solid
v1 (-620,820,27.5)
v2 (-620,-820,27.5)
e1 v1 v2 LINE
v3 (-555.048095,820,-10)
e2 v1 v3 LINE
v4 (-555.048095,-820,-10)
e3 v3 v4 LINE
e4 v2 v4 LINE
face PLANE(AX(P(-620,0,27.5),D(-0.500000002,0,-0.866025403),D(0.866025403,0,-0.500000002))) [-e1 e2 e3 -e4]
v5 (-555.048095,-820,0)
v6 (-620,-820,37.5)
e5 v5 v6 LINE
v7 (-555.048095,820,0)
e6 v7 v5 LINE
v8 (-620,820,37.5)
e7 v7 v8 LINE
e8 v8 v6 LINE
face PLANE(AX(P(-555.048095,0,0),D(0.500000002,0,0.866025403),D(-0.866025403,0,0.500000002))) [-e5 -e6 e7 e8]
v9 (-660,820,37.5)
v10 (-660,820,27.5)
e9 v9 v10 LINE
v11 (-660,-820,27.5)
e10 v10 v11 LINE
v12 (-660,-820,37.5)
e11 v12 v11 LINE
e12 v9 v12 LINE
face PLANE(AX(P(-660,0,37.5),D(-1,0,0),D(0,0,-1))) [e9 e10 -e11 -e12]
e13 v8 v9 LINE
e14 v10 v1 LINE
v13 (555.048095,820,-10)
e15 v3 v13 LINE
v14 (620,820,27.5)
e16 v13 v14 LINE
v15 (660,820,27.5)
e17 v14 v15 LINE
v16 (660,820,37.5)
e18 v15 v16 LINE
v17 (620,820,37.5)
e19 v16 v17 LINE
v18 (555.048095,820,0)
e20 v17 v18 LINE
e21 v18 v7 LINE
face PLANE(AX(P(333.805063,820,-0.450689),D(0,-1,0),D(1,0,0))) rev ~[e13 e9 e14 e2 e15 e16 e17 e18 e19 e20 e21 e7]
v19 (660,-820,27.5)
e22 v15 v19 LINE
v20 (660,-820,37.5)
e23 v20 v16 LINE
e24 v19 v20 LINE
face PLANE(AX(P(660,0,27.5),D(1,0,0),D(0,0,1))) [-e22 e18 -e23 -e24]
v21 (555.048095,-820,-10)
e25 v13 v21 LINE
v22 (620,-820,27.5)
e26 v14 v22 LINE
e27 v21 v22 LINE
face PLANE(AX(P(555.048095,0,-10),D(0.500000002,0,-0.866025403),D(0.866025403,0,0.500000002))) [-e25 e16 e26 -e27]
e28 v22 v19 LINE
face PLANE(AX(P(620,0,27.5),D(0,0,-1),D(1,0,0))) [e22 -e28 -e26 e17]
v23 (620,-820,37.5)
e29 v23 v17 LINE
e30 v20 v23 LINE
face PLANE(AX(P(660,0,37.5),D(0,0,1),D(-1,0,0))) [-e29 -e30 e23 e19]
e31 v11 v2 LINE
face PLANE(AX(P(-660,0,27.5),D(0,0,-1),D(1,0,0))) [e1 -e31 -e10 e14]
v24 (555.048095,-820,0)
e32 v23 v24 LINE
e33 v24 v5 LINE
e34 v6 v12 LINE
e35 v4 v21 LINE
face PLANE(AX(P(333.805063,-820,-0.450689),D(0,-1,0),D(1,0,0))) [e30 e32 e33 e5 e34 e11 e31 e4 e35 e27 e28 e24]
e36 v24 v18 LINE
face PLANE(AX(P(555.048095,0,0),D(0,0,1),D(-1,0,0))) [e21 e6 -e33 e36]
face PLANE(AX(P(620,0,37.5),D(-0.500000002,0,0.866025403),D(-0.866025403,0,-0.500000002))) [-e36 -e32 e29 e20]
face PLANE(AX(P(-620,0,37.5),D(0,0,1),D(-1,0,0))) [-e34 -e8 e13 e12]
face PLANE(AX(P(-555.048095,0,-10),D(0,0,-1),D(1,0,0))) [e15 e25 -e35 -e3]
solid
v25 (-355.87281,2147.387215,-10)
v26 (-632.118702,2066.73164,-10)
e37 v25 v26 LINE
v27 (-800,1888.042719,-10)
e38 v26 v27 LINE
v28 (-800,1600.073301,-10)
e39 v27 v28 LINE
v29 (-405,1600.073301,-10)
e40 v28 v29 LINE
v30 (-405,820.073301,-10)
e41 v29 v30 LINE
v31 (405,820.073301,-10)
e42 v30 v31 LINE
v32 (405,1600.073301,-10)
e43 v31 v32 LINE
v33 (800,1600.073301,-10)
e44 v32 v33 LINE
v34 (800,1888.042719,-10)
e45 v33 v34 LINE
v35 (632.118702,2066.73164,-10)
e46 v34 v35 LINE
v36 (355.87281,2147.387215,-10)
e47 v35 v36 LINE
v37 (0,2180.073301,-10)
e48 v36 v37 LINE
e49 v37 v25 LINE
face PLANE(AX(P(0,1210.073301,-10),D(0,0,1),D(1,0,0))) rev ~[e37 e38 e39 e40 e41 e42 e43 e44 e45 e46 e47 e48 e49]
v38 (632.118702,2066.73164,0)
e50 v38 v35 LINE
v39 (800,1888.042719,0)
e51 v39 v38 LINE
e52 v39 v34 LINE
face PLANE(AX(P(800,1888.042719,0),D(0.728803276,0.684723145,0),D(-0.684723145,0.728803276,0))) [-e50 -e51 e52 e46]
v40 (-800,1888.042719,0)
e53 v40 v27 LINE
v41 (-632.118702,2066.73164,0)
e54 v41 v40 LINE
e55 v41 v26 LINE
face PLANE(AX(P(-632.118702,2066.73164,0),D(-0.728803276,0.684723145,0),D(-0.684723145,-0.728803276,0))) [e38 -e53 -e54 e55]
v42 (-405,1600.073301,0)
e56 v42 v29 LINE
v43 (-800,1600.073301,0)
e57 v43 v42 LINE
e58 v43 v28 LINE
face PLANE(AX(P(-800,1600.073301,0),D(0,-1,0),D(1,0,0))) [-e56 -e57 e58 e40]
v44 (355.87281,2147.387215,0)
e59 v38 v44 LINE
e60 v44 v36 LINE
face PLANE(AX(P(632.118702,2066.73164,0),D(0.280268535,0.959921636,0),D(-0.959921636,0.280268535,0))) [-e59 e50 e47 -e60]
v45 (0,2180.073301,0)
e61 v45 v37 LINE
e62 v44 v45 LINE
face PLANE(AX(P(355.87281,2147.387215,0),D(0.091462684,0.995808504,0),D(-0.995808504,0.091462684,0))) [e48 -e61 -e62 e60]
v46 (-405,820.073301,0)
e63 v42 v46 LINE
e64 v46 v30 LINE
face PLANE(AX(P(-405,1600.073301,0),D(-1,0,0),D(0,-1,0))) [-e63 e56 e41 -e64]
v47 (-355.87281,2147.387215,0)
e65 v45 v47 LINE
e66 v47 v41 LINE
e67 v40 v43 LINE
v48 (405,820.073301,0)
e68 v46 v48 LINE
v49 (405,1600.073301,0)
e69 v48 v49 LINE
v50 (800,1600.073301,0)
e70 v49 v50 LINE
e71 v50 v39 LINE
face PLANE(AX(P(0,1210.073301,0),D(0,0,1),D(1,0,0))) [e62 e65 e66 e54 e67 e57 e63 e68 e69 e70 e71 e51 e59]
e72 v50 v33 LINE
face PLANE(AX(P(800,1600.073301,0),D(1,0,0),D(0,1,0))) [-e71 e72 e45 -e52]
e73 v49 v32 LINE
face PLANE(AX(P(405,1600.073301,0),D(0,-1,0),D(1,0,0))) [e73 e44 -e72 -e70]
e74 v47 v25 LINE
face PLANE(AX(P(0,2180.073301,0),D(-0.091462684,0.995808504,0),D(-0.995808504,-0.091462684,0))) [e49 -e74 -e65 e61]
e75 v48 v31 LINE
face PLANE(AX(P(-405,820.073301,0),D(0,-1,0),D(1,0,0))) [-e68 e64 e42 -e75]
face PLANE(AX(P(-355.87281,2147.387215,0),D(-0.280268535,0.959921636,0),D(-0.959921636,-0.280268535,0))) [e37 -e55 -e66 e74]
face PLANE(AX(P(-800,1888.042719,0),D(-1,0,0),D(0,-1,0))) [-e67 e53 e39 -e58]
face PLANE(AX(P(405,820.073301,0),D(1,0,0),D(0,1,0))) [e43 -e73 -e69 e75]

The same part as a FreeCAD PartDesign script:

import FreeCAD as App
import Part
import Sketcher
Q = App.Units.Quantity

doc = App.newDocument("Part")
body = doc.addObject("PartDesign::Body", "Body")

# Sketch on XZ plane
sketch1 = body.newObject("Sketcher::SketchObject", "Sketch")
sketch1.AttachmentSupport = (doc.getObject("XZ_Plane"), [""])
sketch1.MapMode = "FlatFace"
sketch1.addGeometry([
    Part.LineSegment(App.Vector(555.048095, 0, 0), App.Vector(-555.048095, 0, 0)),  # 0
    Part.LineSegment(App.Vector(-555.048095, 0, 0), App.Vector(-620, 37.5, 0)),  # 1
    Part.LineSegment(App.Vector(-620, 37.5, 0), App.Vector(-660, 37.5, 0)),  # 2
    Part.LineSegment(App.Vector(-660, 37.5, 0), App.Vector(-660, 27.5, 0)),  # 3
    Part.LineSegment(App.Vector(-660, 27.5, 0), App.Vector(-620, 27.5, 0)),  # 4
    Part.LineSegment(App.Vector(-620, 27.5, 0), App.Vector(-555.048095, -10, 0)),  # 5
    Part.LineSegment(App.Vector(-555.048095, -10, 0), App.Vector(555.048095, -10, 0)),  # 6
    Part.LineSegment(App.Vector(555.048095, -10, 0), App.Vector(620, 27.5, 0)),  # 7
    Part.LineSegment(App.Vector(620, 27.5, 0), App.Vector(660, 27.5, 0)),  # 8
    Part.LineSegment(App.Vector(660, 27.5, 0), App.Vector(660, 37.5, 0)),  # 9
    Part.LineSegment(App.Vector(660, 37.5, 0), App.Vector(620, 37.5, 0)),  # 10
    Part.LineSegment(App.Vector(620, 37.5, 0), App.Vector(555.048095, 0, 0)),  # 11
], False)
sketch1.addConstraint([
    Sketcher.Constraint("Coincident", 0, 2, 1, 1),
    Sketcher.Constraint("Coincident", 1, 2, 2, 1),
    Sketcher.Constraint("Coincident", 2, 2, 3, 1),
    Sketcher.Constraint("Coincident", 3, 2, 4, 1),
    Sketcher.Constraint("Coincident", 4, 2, 5, 1),
    Sketcher.Constraint("Coincident", 5, 2, 6, 1),
    Sketcher.Constraint("Coincident", 6, 2, 7, 1),
    Sketcher.Constraint("Coincident", 7, 2, 8, 1),
    Sketcher.Constraint("Coincident", 8, 2, 9, 1),
    Sketcher.Constraint("Coincident", 9, 2, 10, 1),
    Sketcher.Constraint("Coincident", 10, 2, 11, 1),
    Sketcher.Constraint("Coincident", 11, 2, 0, 1),
    Sketcher.Constraint("Horizontal", 0),
    Sketcher.Constraint("Horizontal", 2),
    Sketcher.Constraint("Vertical", 3),
    Sketcher.Constraint("Horizontal", 4),
    Sketcher.Constraint("Horizontal", 6),
    Sketcher.Constraint("Horizontal", 8),
    Sketcher.Constraint("Vertical", 9),
    Sketcher.Constraint("Horizontal", 10),
    Sketcher.Constraint("Symmetric", 0, 2, 11, 2, -1, 1),
    Sketcher.Constraint("Symmetric", 4, 2, 7, 2, -2),
    Sketcher.Constraint("Symmetric", 2, 2, 9, 2, -2),
    Sketcher.Constraint("Parallel", 1, 5),
    Sketcher.Constraint("Parallel", 7, 11),
    Sketcher.Constraint("Vertical", 1, 2, 4, 2),
    Sketcher.Constraint("Vertical", 0, 2, 5, 2),
    Sketcher.Constraint("Vertical", 7, 2, 10, 2),
    Sketcher.Constraint("DistanceX", 2, 2, 2, 1, Q("40 mm")),
    Sketcher.Constraint("DistanceY", 3, 2, 3, 1, Q("10 mm")),
    Sketcher.Constraint("Angle", 1, Q("150 deg")),
    Sketcher.Constraint("Distance", 1, Q("75 mm")),
    Sketcher.Constraint("DistanceX", 1, 2, -1, 1, Q("620 mm")),
])
pad1 = body.newObject("PartDesign::Pad", "Pad")
pad1.Profile = sketch1
pad1.Length = 1640
pad1.Midplane = True
body2 = doc.addObject("PartDesign::Body", "Body001")

# Sketch on XY plane
sketch2 = body2.newObject("Sketcher::SketchObject", "Sketch001")
sketch2.AttachmentSupport = (doc.getObject("XY_Plane001"), [""])
sketch2.MapMode = "FlatFace"
sketch2.addGeometry([
    Part.LineSegment(App.Vector(-405, 820.073301, 0), App.Vector(405, 820.073301, 0)),  # 0
    Part.LineSegment(App.Vector(405, 820.073301, 0), App.Vector(405, 1600.073301, 0)),  # 1
    Part.LineSegment(App.Vector(405, 1600.073301, 0), App.Vector(800, 1600.073301, 0)),  # 2
    Part.LineSegment(App.Vector(800, 1600.073301, 0), App.Vector(800, 1888.042719, 0)),  # 3
    Part.LineSegment(App.Vector(800, 1888.042719, 0), App.Vector(632.118702, 2066.73164, 0)),  # 4
    Part.LineSegment(App.Vector(632.118702, 2066.73164, 0), App.Vector(355.87281, 2147.387215, 0)),  # 5
    Part.LineSegment(App.Vector(355.87281, 2147.387215, 0), App.Vector(0, 2180.073301, 0)),  # 6
    Part.LineSegment(App.Vector(0, 2180.073301, 0), App.Vector(-355.87281, 2147.387215, 0)),  # 7
    Part.LineSegment(App.Vector(-355.87281, 2147.387215, 0), App.Vector(-632.118702, 2066.73164, 0)),  # 8
    Part.LineSegment(App.Vector(-632.118702, 2066.73164, 0), App.Vector(-800, 1888.042719, 0)),  # 9
    Part.LineSegment(App.Vector(-800, 1888.042719, 0), App.Vector(-800, 1600.073301, 0)),  # 10
    Part.LineSegment(App.Vector(-800, 1600.073301, 0), App.Vector(-405, 1600.073301, 0)),  # 11
    Part.LineSegment(App.Vector(-405, 1600.073301, 0), App.Vector(-405, 820.073301, 0)),  # 12
], False)
sketch2.addConstraint([
    Sketcher.Constraint("Coincident", 0, 2, 1, 1),
    Sketcher.Constraint("Coincident", 1, 2, 2, 1),
    Sketcher.Constraint("Coincident", 2, 2, 3, 1),
    Sketcher.Constraint("Coincident", 3, 2, 4, 1),
    Sketcher.Constraint("Coincident", 4, 2, 5, 1),
    Sketcher.Constraint("Coincident", 5, 2, 6, 1),
    Sketcher.Constraint("Coincident", 6, 2, 7, 1),
    Sketcher.Constraint("Coincident", 7, 2, 8, 1),
    Sketcher.Constraint("Coincident", 8, 2, 9, 1),
    Sketcher.Constraint("Coincident", 9, 2, 10, 1),
    Sketcher.Constraint("Coincident", 10, 2, 11, 1),
    Sketcher.Constraint("Coincident", 11, 2, 12, 1),
    Sketcher.Constraint("Coincident", 12, 2, 0, 1),
    Sketcher.Constraint("Horizontal", 0),
    Sketcher.Constraint("Vertical", 1),
    Sketcher.Constraint("Horizontal", 2),
    Sketcher.Constraint("Vertical", 3),
    Sketcher.Constraint("Vertical", 10),
    Sketcher.Constraint("Horizontal", 11),
    Sketcher.Constraint("Vertical", 12),
    Sketcher.Constraint("Symmetric", 5, 2, 7, 2, -2),
    Sketcher.Constraint("Symmetric", 4, 2, 8, 2, -2),
    Sketcher.Constraint("Symmetric", 3, 2, 9, 2, -2),
    Sketcher.Constraint("Symmetric", 1, 2, 11, 2, -2),
    Sketcher.Constraint("PointOnObject", 6, 2, -2),
    Sketcher.Constraint("DistanceX", 0, 1, 0, 2, Q("810 mm")),
    Sketcher.Constraint("DistanceX", 2, 1, 2, 2, Q("395 mm")),
    Sketcher.Constraint("DistanceY", 1, 1, 1, 2, Q("780 mm")),
    Sketcher.Constraint("DistanceY", 1, 2, 6, 2, Q("580 mm")),
    Sketcher.Constraint("DistanceY", 3, 1, 3, 2, Q("287.969418 mm")),
    Sketcher.Constraint("DistanceY", -1, 1, 0, 2, Q("820.073301 mm")),
    Sketcher.Constraint("DistanceX", -1, 1, 4, 2, Q("632.118702 mm")),
    Sketcher.Constraint("Distance", 4, Q("245.181281 mm")),
    Sketcher.Constraint("Distance", 5, Q("287.779629 mm")),
    Sketcher.Constraint("DistanceX", -1, 1, 5, 2, Q("355.87281 mm")),
])
pad2 = body2.newObject("PartDesign::Pad", "Pad001")
pad2.Profile = sketch2
pad2.Length = 10
pad2.Reversed = True

doc.recompute()
